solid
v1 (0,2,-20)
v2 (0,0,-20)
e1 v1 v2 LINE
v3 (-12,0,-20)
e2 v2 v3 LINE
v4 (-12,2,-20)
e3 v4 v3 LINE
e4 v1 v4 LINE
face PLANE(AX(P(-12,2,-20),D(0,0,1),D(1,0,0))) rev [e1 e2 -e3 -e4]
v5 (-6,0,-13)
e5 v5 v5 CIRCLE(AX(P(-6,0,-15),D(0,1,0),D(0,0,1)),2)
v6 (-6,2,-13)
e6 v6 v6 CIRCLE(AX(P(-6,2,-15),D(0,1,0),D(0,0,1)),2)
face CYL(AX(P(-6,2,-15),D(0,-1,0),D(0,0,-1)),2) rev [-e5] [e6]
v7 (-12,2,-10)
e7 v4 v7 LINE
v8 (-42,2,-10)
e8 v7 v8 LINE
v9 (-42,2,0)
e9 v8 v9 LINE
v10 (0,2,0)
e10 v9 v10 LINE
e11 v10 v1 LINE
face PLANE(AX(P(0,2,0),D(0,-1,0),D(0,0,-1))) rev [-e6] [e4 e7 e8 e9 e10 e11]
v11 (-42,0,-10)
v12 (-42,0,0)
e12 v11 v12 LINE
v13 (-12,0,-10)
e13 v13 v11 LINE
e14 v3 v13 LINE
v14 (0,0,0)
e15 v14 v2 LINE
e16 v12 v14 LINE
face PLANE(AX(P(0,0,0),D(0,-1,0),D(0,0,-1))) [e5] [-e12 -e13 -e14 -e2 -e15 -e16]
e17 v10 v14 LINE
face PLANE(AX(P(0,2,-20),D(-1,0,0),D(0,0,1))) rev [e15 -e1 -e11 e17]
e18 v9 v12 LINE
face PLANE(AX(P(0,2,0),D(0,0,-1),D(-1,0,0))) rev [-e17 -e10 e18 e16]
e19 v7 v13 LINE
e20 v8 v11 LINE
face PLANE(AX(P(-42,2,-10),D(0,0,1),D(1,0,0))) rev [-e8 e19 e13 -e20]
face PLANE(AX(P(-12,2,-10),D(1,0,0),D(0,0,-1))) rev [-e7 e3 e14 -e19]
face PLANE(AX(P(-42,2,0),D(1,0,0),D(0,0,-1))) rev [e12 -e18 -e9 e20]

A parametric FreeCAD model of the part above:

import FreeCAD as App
import Part
import Sketcher
Q = App.Units.Quantity

doc = App.newDocument("Part")
body = doc.addObject("PartDesign::Body", "Body")

sketch1 = body.newObject("Sketcher::SketchObject", "Sketch")
sketch1.AttachmentSupport = (doc.getObject("XZ_Plane"), [""])
sketch1.MapMode = "FlatFace"
sketch1.addGeometry(Part.LineSegment(App.Vector(-42, 0, 0), App.Vector(0, 0, 0)), False)
sketch1.addGeometry(Part.LineSegment(App.Vector(0, 0, 0), App.Vector(0, -20, 0)), False)
sketch1.addGeometry(Part.LineSegment(App.Vector(0, -20, 0), App.Vector(-12, -20, 0)), False)
sketch1.addGeometry(Part.LineSegment(App.Vector(-12, -20, 0), App.Vector(-12, -10, 0)), False)
sketch1.addGeometry(Part.LineSegment(App.Vector(-12, -10, 0), App.Vector(-42, -10, 0)), False)
sketch1.addGeometry(Part.LineSegment(App.Vector(-42, -10, 0), App.Vector(-42, 0, 0)), False)
sketch1.addGeometry(Part.Circle(App.Vector(-6, -15, 0), App.Vector(0, 0, 1), 2), False)
sketch1.addConstraint(Sketcher.Constraint("Coincident", 0, 2, 1, 1))
sketch1.addConstraint(Sketcher.Constraint("Coincident", 1, 2, 2, 1))
sketch1.addConstraint(Sketcher.Constraint("Coincident", 2, 2, 3, 1))
sketch1.addConstraint(Sketcher.Constraint("Coincident", 3, 2, 4, 1))
sketch1.addConstraint(Sketcher.Constraint("Coincident", 4, 2, 5, 1))
sketch1.addConstraint(Sketcher.Constraint("Coincident", 5, 2, 0, 1))
sketch1.addConstraint(Sketcher.Constraint("Horizontal", 0))
sketch1.addConstraint(Sketcher.Constraint("Vertical", 1))
sketch1.addConstraint(Sketcher.Constraint("Horizontal", 2))
sketch1.addConstraint(Sketcher.Constraint("Vertical", 3))
sketch1.addConstraint(Sketcher.Constraint("Horizontal", 4))
sketch1.addConstraint(Sketcher.Constraint("Vertical", 5))
sketch1.addConstraint(Sketcher.Constraint("Coincident", 0, 2, -1, 1))
sketch1.addConstraint(Sketcher.Constraint("Equal", 3, 5))
sketch1.addConstraint(Sketcher.Constraint("Diameter", 6, Q("4 mm")))
sketch1.addConstraint(Sketcher.Constraint("DistanceX", 0, 1, 0, 2, Q("42 mm")))
sketch1.addConstraint(Sketcher.Constraint("DistanceX", 2, 2, 2, 1, Q("12 mm")))
sketch1.addConstraint(Sketcher.Constraint("DistanceY", 1, 2, 1, 1, Q("20 mm")))
sketch1.addConstraint(Sketcher.Constraint("DistanceX", 6, 3, -1, 1, Q("6 mm")))
sketch1.addConstraint(Sketcher.Constraint("DistanceY", 6, 3, -1, 1, Q("15 mm")))
pad1 = body.newObject("PartDesign::Pad", "Pad")
pad1.Profile = sketch1
pad1.Length = 2
pad1.Reversed = True

doc.recompute()
